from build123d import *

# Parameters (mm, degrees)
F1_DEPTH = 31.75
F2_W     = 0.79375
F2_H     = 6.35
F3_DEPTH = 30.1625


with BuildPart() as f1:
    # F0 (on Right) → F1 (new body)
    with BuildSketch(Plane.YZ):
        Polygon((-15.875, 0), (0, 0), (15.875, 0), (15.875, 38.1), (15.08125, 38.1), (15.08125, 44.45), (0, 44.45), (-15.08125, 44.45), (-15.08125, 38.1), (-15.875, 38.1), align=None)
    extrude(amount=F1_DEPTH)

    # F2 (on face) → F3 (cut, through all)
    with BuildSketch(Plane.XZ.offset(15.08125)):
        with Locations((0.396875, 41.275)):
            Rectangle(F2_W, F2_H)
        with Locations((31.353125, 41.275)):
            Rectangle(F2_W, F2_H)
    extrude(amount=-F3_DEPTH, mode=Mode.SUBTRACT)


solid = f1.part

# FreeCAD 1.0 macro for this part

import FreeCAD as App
import Part
import Sketcher
from FreeCAD import Vector
Q = App.Units.Quantity

doc = App.newDocument("Part")
body = doc.addObject("PartDesign::Body", "Body")

# Sketch on YZ plane
sketch1 = doc.addObject("Sketcher::SketchObject", "Sketch")
body.addObject(sketch1)
sketch1.AttachmentSupport = (doc.YZ_Plane, [""])
sketch1.MapMode = "FlatFace"
sketch1.addGeometry(Part.LineSegment(Vector(-15.9, 0, 0), Vector(15.9, 0, 0)), False)
sketch1.addGeometry(Part.LineSegment(Vector(15.9, 0, 0), Vector(15.9, 38.1, 0)), False)
sketch1.addGeometry(Part.LineSegment(Vector(15.9, 38.1, 0), Vector(15.1, 38.1, 0)), False)
sketch1.addGeometry(Part.LineSegment(Vector(15.1, 38.1, 0), Vector(15.1, 44.5, 0)), False)
sketch1.addGeometry(Part.LineSegment(Vector(15.1, 44.5, 0), Vector(-15.1, 44.5, 0)), False)
sketch1.addGeometry(Part.LineSegment(Vector(-15.1, 44.5, 0), Vector(-15.1, 38.1, 0)), False)
sketch1.addGeometry(Part.LineSegment(Vector(-15.1, 38.1, 0), Vector(-15.9, 38.1, 0)), False)
sketch1.addGeometry(Part.LineSegment(Vector(-15.9, 38.1, 0), Vector(-15.9, 0, 0)), False)
sketch1.addConstraint(Sketcher.Constraint("Coincident", 0, 2, 1, 1))
sketch1.addConstraint(Sketcher.Constraint("Coincident", 1, 2, 2, 1))
sketch1.addConstraint(Sketcher.Constraint("Coincident", 2, 2, 3, 1))
sketch1.addConstraint(Sketcher.Constraint("Coincident", 3, 2, 4, 1))
sketch1.addConstraint(Sketcher.Constraint("Coincident", 4, 2, 5, 1))
sketch1.addConstraint(Sketcher.Constraint("Coincident", 5, 2, 6, 1))
sketch1.addConstraint(Sketcher.Constraint("Coincident", 6, 2, 7, 1))
sketch1.addConstraint(Sketcher.Constraint("Coincident", 7, 2, 0, 1))
sketch1.addConstraint(Sketcher.Constraint("Horizontal", 0))
sketch1.addConstraint(Sketcher.Constraint("Vertical", 1))
sketch1.addConstraint(Sketcher.Constraint("Horizontal", 2))
sketch1.addConstraint(Sketcher.Constraint("Vertical", 3))
sketch1.addConstraint(Sketcher.Constraint("Horizontal", 4))
sketch1.addConstraint(Sketcher.Constraint("Vertical", 5))
sketch1.addConstraint(Sketcher.Constraint("Horizontal", 6))
sketch1.addConstraint(Sketcher.Constraint("Vertical", 7))
sketch1.addConstraint(Sketcher.Constraint("Symmetric", 0, 2, 7, 2, -1, 1))
sketch1.addConstraint(Sketcher.Constraint("Symmetric", 2, 2, 5, 2, -2))
sketch1.addConstraint(Sketcher.Constraint("DistanceY", 1, 1, 1, 2, Q("1.5 in")))
sketch1.addConstraint(Sketcher.Constraint("DistanceX", 0, 1, 0, 2, Q("1.25 in")))
sketch1.addConstraint(Sketcher.Constraint("DistanceY", 3, 1, 3, 2, Q("0.25 in")))
sketch1.addConstraint(Sketcher.Constraint("DistanceX", 2, 2, 2, 1, Q("0.03125 in")))
pad1 = doc.addObject("PartDesign::Pad", "Pad")
body.addObject(pad1)
pad1.Profile = sketch1
pad1.Length = Q("1.25 in")

# Sketch on XZ plane
sketch2 = doc.addObject("Sketcher::SketchObject", "Sketch001")
body.addObject(sketch2)
sketch2.AttachmentSupport = (doc.XZ_Plane, [""])
sketch2.MapMode = "FlatFace"
sketch2.AttachmentOffset = App.Placement(Vector(0, 0, 0.59375 * 25.4), App.Rotation())
sketch2.addGeometry(Part.LineSegment(Vector(0, 44.5, 0), Vector(0, 38.1, 0)), False)
sketch2.addGeometry(Part.LineSegment(Vector(0, 38.1, 0), Vector(0.8, 38.1, 0)), False)
sketch2.addGeometry(Part.LineSegment(Vector(0.8, 38.1, 0), Vector(0.8, 44.5, 0)), False)
sketch2.addGeometry(Part.LineSegment(Vector(0.8, 44.5, 0), Vector(0, 44.5, 0)), False)
sketch2.addGeometry(Part.LineSegment(Vector(31, 44.5, 0), Vector(31, 38.1, 0)), False)
sketch2.addGeometry(Part.LineSegment(Vector(31, 38.1, 0), Vector(31.8, 38.1, 0)), False)
sketch2.addGeometry(Part.LineSegment(Vector(31.8, 38.1, 0), Vector(31.8, 44.5, 0)), False)
sketch2.addGeometry(Part.LineSegment(Vector(31.8, 44.5, 0), Vector(31, 44.5, 0)), False)
sketch2.addConstraint(Sketcher.Constraint("Coincident", 0, 2, 1, 1))
sketch2.addConstraint(Sketcher.Constraint("Coincident", 1, 2, 2, 1))
sketch2.addConstraint(Sketcher.Constraint("Coincident", 2, 2, 3, 1))
sketch2.addConstraint(Sketcher.Constraint("Coincident", 3, 2, 0, 1))
sketch2.addConstraint(Sketcher.Constraint("Coincident", 4, 2, 5, 1))
sketch2.addConstraint(Sketcher.Constraint("Coincident", 5, 2, 6, 1))
sketch2.addConstraint(Sketcher.Constraint("Coincident", 6, 2, 7, 1))
sketch2.addConstraint(Sketcher.Constraint("Coincident", 7, 2, 4, 1))
sketch2.addConstraint(Sketcher.Constraint("Vertical", 0))
sketch2.addConstraint(Sketcher.Constraint("Horizontal", 1))
sketch2.addConstraint(Sketcher.Constraint("Vertical", 2))
sketch2.addConstraint(Sketcher.Constraint("Horizontal", 3))
sketch2.addConstraint(Sketcher.Constraint("Vertical", 4))
sketch2.addConstraint(Sketcher.Constraint("Horizontal", 5))
sketch2.addConstraint(Sketcher.Constraint("Vertical", 6))
sketch2.addConstraint(Sketcher.Constraint("Horizontal", 7))
sketch2.addConstraint(Sketcher.Constraint("PointOnObject", 0, 2, -2))
sketch2.addConstraint(Sketcher.Constraint("Horizontal", 1, 2, 4, 2))
sketch2.addConstraint(Sketcher.Constraint("Horizontal", 3, 2, 6, 2))
sketch2.addConstraint(Sketcher.Constraint("Equal", 3, 5))
sketch2.addConstraint(Sketcher.Constraint("DistanceY", 0, 2, 0, 1, Q("0.25 in")))
sketch2.addConstraint(Sketcher.Constraint("DistanceY", -1, 1, 0, 2, Q("1.5 in")))
sketch2.addConstraint(Sketcher.Constraint("DistanceX", 1, 1, 1, 2, Q("0.03125 in")))
sketch2.addConstraint(Sketcher.Constraint("DistanceX", -1, 1, 5, 2, Q("1.25 in")))
pocket1 = doc.addObject("PartDesign::Pocket", "Pocket")
body.addObject(pocket1)
pocket1.Profile = sketch2
pocket1.Type = "ThroughAll"

doc.recompute()
